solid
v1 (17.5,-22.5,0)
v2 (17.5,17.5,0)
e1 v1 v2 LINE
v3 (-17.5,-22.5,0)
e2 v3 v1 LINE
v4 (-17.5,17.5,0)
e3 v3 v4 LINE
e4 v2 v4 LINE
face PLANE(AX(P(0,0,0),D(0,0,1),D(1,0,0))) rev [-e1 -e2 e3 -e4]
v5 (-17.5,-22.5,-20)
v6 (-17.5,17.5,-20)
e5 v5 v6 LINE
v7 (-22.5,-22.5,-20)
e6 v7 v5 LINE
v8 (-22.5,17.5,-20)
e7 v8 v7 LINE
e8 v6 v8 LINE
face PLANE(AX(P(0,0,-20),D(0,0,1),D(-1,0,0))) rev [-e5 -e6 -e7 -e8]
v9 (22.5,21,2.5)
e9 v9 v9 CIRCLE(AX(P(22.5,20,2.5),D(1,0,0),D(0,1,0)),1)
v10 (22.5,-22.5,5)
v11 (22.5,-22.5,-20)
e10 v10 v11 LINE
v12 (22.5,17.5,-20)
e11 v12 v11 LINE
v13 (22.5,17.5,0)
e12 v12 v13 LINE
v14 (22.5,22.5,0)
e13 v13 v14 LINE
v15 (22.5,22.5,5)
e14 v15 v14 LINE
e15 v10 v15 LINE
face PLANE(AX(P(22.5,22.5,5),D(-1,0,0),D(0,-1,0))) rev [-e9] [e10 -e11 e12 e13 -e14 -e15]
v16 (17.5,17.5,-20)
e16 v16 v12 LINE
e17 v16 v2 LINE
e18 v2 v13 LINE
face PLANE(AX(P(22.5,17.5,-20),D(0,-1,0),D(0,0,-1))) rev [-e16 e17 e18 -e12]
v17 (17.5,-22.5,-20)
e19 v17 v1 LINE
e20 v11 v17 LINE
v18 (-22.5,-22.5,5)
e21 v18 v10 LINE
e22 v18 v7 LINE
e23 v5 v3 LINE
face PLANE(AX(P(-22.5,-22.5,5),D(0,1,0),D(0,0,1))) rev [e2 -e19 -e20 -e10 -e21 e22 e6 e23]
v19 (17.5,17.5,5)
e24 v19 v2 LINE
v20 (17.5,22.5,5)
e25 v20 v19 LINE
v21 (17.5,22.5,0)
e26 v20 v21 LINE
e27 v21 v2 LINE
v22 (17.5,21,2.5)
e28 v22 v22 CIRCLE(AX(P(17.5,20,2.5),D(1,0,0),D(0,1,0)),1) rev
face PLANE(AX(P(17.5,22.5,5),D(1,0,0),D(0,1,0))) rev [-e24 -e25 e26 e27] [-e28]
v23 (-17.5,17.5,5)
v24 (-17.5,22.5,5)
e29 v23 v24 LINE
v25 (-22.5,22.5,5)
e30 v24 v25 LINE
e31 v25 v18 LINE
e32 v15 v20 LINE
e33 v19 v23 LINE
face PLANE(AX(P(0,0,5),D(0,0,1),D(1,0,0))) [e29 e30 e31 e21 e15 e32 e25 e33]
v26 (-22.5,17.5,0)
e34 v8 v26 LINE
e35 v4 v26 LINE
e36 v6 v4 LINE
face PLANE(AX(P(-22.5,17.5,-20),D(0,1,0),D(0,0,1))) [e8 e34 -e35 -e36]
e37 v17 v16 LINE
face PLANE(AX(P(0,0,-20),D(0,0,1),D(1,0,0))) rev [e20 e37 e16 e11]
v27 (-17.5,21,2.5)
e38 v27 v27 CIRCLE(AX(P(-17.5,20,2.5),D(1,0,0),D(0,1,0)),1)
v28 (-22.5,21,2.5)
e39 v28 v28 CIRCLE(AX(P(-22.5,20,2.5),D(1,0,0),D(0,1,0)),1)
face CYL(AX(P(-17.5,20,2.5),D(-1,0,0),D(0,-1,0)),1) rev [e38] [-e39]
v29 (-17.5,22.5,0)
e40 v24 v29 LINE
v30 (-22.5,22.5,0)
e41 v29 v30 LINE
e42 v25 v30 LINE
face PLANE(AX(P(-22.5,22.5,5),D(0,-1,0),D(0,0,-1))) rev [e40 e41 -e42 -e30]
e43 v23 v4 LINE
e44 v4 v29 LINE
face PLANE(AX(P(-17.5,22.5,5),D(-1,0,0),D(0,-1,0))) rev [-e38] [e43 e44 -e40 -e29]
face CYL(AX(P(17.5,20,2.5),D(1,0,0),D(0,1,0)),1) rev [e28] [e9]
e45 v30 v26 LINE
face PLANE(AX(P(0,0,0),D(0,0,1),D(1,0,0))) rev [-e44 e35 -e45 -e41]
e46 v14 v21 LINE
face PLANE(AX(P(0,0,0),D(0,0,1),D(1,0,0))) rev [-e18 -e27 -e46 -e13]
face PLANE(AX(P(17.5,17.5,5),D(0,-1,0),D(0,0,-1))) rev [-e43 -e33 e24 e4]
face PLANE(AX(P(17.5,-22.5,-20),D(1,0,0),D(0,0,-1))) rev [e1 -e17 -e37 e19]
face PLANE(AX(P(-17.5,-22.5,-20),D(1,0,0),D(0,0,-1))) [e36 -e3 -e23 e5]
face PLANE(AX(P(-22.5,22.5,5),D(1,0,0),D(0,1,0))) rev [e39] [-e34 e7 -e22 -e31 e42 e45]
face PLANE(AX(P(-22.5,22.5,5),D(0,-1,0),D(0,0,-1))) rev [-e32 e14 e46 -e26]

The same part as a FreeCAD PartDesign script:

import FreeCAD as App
import Part
import Sketcher
from FreeCAD import Vector


def add_polygon(sketch, points):
    """Adds a closed chain of lines whose ends are joined by coincident constraints."""
    first, n = sketch.GeometryCount, len(points)
    for a, b in zip(points, points[1:] + points[:1]):
        sketch.addGeometry(Part.LineSegment(App.Vector(*a, 0), App.Vector(*b, 0)), False)
    for i in range(n):
        sketch.addConstraint(Sketcher.Constraint("Coincident", first + i, 2, first + (i + 1) % n, 1))

doc = App.newDocument("Part")
body = doc.addObject("PartDesign::Body", "Body")

sketch1 = doc.addObject("Sketcher::SketchObject", "Sketch")
body.addObject(sketch1)
sketch1.AttachmentSupport = (doc.XY_Plane, [""])
sketch1.MapMode = "FlatFace"
add_polygon(sketch1, [(-22, 22), (-22, -22), (22, -22), (22, 22)])
sketch1.addConstraint(Sketcher.Constraint("Vertical", 0))
sketch1.addConstraint(Sketcher.Constraint("Horizontal", 1))
sketch1.addConstraint(Sketcher.Constraint("Vertical", 2))
sketch1.addConstraint(Sketcher.Constraint("Horizontal", 3))
sketch1.addConstraint(Sketcher.Constraint("Symmetric", 0, 2, 2, 2, -1, 1))
sketch1.addConstraint(Sketcher.Constraint("Equal", 3, 0))
sketch1.addConstraint(Sketcher.Constraint("DistanceX", 1, 1, 1, 2, 45.0))
pad1 = doc.addObject("PartDesign::Pad", "Pad")
body.addObject(pad1)
pad1.Profile = sketch1
pad1.Length = 5

sketch2 = doc.addObject("Sketcher::SketchObject", "Sketch001")
body.addObject(sketch2)
sketch2.AttachmentSupport = (doc.YZ_Plane, [""])
sketch2.MapMode = "FlatFace"
sketch2.AttachmentOffset = App.Placement(Vector(0, 0, 22.5), App.Rotation())
sketch2.addGeometry(Part.Circle(Vector(20, 2.5, 0), Vector(0, 0, 1), 1), False)
sketch2.addConstraint(Sketcher.Constraint("Diameter", 0, 2.0))
sketch2.addConstraint(Sketcher.Constraint("DistanceX", -1, 1, 0, 3, 20.0))
sketch2.addConstraint(Sketcher.Constraint("DistanceY", -1, 1, 0, 3, 2.5))
pocket1 = doc.addObject("PartDesign::Pocket", "Pocket")
body.addObject(pocket1)
pocket1.Profile = sketch2
pocket1.Length = 5

sketch3 = doc.addObject("Sketcher::SketchObject", "Sketch002")
body.addObject(sketch3)
sketch3.AttachmentSupport = (doc.XY_Plane, [""])
sketch3.MapMode = "FlatFace"
add_polygon(sketch3, [(18, 22), (18, 18), (-18, 18), (-18, 22)])
sketch3.addConstraint(Sketcher.Constraint("Vertical", 0))
sketch3.addConstraint(Sketcher.Constraint("Horizontal", 1))
sketch3.addConstraint(Sketcher.Constraint("Vertical", 2))
sketch3.addConstraint(Sketcher.Constraint("Horizontal", 3))
sketch3.addConstraint(Sketcher.Constraint("DistanceX", 1, 2, 1, 1, 35.0))
sketch3.addConstraint(Sketcher.Constraint("DistanceY", 0, 2, 0, 1, 5.0))
sketch3.addConstraint(Sketcher.Constraint("DistanceX", -1, 1, 0, 2, 17.5))
sketch3.addConstraint(Sketcher.Constraint("DistanceY", -1, 1, 0, 2, 17.5))
pocket2 = doc.addObject("PartDesign::Pocket", "Pocket001")
body.addObject(pocket2)
pocket2.Profile = sketch3
pocket2.Type = "ThroughAll"
pocket2.Reversed = True
doc.recompute()

mirrored = doc.addObject("PartDesign::Mirrored", "Mirrored")
body.addObject(mirrored)
mirrored.Originals = [pocket1]
mirrored.MirrorPlane = (doc.YZ_Plane, [""])
body.Tip = mirrored

sketch4 = doc.addObject("Sketcher::SketchObject", "Sketch003")
body.addObject(sketch4)
sketch4.AttachmentSupport = (doc.XY_Plane, [""])
sketch4.MapMode = "FlatFace"
add_polygon(sketch4, [(22, 18), (22, -22), (18, -22), (18, 18)])
sketch4.addConstraint(Sketcher.Constraint("Vertical", 0))
sketch4.addConstraint(Sketcher.Constraint("Horizontal", 1))
sketch4.addConstraint(Sketcher.Constraint("Vertical", 2))
sketch4.addConstraint(Sketcher.Constraint("Horizontal", 3))
sketch4.addConstraint(Sketcher.Constraint("DistanceX", 1, 2, 1, 1, 5.0))
sketch4.addConstraint(Sketcher.Constraint("DistanceY", 0, 2, 0, 1, 40.0))
sketch4.addConstraint(Sketcher.Constraint("DistanceX", -1, 1, 0, 2, 22.5))
sketch4.addConstraint(Sketcher.Constraint("DistanceY", 0, 2, -1, 1, 22.5))
pad2 = doc.addObject("PartDesign::Pad", "Pad001")
body.addObject(pad2)
pad2.Profile = sketch4
pad2.Length = 20
pad2.Reversed = True
doc.recompute()

mirrored2 = doc.addObject("PartDesign::Mirrored", "Mirrored001")
body.addObject(mirrored2)
mirrored2.Originals = [pad2]
mirrored2.MirrorPlane = (doc.YZ_Plane, [""])
body.Tip = mirrored2

doc.recompute()
